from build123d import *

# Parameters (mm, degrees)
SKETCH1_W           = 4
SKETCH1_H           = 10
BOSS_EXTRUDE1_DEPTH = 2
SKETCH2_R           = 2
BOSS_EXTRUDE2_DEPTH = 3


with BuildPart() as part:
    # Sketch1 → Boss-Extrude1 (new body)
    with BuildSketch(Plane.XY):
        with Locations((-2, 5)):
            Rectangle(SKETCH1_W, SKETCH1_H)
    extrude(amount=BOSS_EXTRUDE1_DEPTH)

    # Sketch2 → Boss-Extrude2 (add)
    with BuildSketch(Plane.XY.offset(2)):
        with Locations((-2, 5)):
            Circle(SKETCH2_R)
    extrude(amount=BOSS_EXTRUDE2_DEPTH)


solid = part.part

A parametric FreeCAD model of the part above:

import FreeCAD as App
import Part
import Sketcher

V = App.Vector
Q = App.Units.Quantity

doc = App.newDocument("Part")
body = doc.addObject("PartDesign::Body", "Body")

# Sketch on XY plane
sketch1 = body.newObject("Sketcher::SketchObject", "Sketch")
sketch1.AttachmentSupport = (doc.getObject("XY_Plane"), [""])
sketch1.MapMode = "FlatFace"
sketch1.addGeometry([
    Part.LineSegment(V(-4, 10, 0), V(-4, 0, 0)),
    Part.LineSegment(V(-4, 0, 0), V(0, 0, 0)),
    Part.LineSegment(V(0, 0, 0), V(0, 10, 0)),
    Part.LineSegment(V(0, 10, 0), V(-4, 10, 0)),
], False)
sketch1.addConstraint([
    Sketcher.Constraint("Coincident", 0, 2, 1, 1),
    Sketcher.Constraint("Coincident", 1, 2, 2, 1),
    Sketcher.Constraint("Coincident", 2, 2, 3, 1),
    Sketcher.Constraint("Coincident", 3, 2, 0, 1),
    Sketcher.Constraint("Vertical", 0),
    Sketcher.Constraint("Horizontal", 1),
    Sketcher.Constraint("Vertical", 2),
    Sketcher.Constraint("Horizontal", 3),
    Sketcher.Constraint("Coincident", 1, 2, -1, 1),
    Sketcher.Constraint("DistanceX", 1, 1, 1, 2, Q("4 mm")),
    Sketcher.Constraint("DistanceY", 0, 2, 0, 1, Q("10 mm")),
])
pad1 = body.newObject("PartDesign::Pad", "Pad")
pad1.Profile = sketch1
pad1.Length = 2

# Sketch on XY plane
sketch2 = body.newObject("Sketcher::SketchObject", "Sketch001")
sketch2.AttachmentSupport = (doc.getObject("XY_Plane"), [""])
sketch2.MapMode = "FlatFace"
sketch2.AttachmentOffset = App.Placement(V(0, 0, 2), App.Rotation())
sketch2.addGeometry(Part.Circle(V(-2, 5, 0), V(0, 0, 1), 2), False)
sketch2.addConstraint([
    Sketcher.Constraint("Diameter", 0, Q("4 mm")),
    Sketcher.Constraint("DistanceX", 0, 3, -1, 1, Q("2 mm")),
    Sketcher.Constraint("DistanceY", -1, 1, 0, 3, Q("5 mm")),
])
pad2 = body.newObject("PartDesign::Pad", "Pad001")
pad2.Profile = sketch2
pad2.Length = 3

doc.recompute()
